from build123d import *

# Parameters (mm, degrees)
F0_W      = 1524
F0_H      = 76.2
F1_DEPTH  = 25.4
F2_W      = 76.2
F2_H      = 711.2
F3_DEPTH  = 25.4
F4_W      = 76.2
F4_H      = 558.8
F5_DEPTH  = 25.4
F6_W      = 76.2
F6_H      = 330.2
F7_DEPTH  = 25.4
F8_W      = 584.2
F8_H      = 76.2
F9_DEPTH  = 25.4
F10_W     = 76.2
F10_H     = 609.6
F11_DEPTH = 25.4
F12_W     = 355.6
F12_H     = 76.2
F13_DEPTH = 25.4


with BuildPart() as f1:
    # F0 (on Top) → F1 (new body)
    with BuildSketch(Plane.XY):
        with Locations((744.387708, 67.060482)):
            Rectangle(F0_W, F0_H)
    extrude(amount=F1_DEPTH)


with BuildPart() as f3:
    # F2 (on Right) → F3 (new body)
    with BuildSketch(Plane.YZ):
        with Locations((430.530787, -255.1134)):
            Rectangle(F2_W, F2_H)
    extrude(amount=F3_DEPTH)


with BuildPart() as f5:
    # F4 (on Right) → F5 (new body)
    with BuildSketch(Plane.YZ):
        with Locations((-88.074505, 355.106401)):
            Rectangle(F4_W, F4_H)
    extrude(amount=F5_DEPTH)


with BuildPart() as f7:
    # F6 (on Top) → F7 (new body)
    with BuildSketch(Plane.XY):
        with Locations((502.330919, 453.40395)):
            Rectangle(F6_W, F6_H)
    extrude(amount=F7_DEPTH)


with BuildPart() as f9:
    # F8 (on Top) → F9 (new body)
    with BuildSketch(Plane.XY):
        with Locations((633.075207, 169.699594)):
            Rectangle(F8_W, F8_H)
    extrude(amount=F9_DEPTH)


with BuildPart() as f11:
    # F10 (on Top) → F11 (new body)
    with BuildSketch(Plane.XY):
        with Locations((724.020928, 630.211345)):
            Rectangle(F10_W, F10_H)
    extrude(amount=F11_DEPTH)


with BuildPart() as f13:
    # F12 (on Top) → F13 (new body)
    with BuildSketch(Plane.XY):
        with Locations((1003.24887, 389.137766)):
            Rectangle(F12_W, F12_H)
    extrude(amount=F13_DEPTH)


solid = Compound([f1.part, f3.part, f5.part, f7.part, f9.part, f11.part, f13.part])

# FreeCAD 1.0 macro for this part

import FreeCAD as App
import Part
import Sketcher

V = App.Vector
Q = App.Units.Quantity


def add_polygon(sketch, points):
    """Adds a closed chain of lines whose ends are joined by coincident constraints."""
    first, n = sketch.GeometryCount, len(points)
    for a, b in zip(points, points[1:] + points[:1]):
        sketch.addGeometry(Part.LineSegment(App.Vector(*a, 0), App.Vector(*b, 0)), False)
    for i in range(n):
        sketch.addConstraint(Sketcher.Constraint("Coincident", first + i, 2, first + (i + 1) % n, 1))

doc = App.newDocument("Part")
params = doc.addObject("Spreadsheet::Sheet", "Params")
for row, (alias, value) in enumerate([
    ("sketch1_width", "60 in"),
    ("sketch1_height", "3 in"),
    ("pad1_length", "1 in"),
    ("sketch2_width", "3 in"),
    ("sketch2_height", "28 in"),
    ("pad2_length", "1 in"),
    ("sketch3_width", "3 in"),
    ("sketch3_height", "22 in"),
    ("pad3_length", "1 in"),
    ("sketch4_width", "3 in"),
    ("sketch4_height", "13 in"),
    ("pad4_length", "1 in"),
    ("sketch5_width", "23 in"),
    ("sketch5_height", "3 in"),
    ("pad5_length", "1 in"),
    ("sketch6_width", "3 in"),
    ("sketch6_height", "24 in"),
    ("pad6_length", "1 in"),
    ("sketch7_width", "14 in"),
    ("sketch7_height", "3 in"),
    ("pad7_length", "1 in"),
], start=1):
    params.set(f"A{row}", alias)
    params.set(f"B{row}", "=" + value)
    params.setAlias(f"B{row}", alias)

body = doc.addObject("PartDesign::Body", "Body")

sketch1 = body.newObject("Sketcher::SketchObject", "Sketch")
sketch1.AttachmentSupport = (doc.getObject("XY_Plane"), [""])
sketch1.MapMode = "FlatFace"
add_polygon(sketch1, [(-18, 105), (-18, 29), (1506, 29), (1506, 105)])
sketch1.addConstraint([
    Sketcher.Constraint("Vertical", 0),
    Sketcher.Constraint("Horizontal", 1),
    Sketcher.Constraint("Vertical", 2),
    Sketcher.Constraint("Horizontal", 3),
    Sketcher.Constraint("DistanceX", 1, 1, 1, 2, Q("60 in")),
    Sketcher.Constraint("DistanceY", 0, 2, 0, 1, Q("3 in")),
    Sketcher.Constraint("DistanceX", 0, 2, -1, 1, 17.612292),
    Sketcher.Constraint("DistanceY", -1, 1, 0, 2, 28.960482),
])
sketch1.setExpression("Constraints[8]", "Params.sketch1_width")
sketch1.setExpression("Constraints[9]", "Params.sketch1_height")
pad1 = body.newObject("PartDesign::Pad", "Pad")
pad1.Profile = sketch1
pad1.setExpression("Length", "Params.pad1_length")
body2 = doc.addObject("PartDesign::Body", "Body001")

sketch2 = body2.newObject("Sketcher::SketchObject", "Sketch001")
sketch2.AttachmentSupport = (doc.getObject("YZ_Plane001"), [""])
sketch2.MapMode = "FlatFace"
add_polygon(sketch2, [(392, 100), (392, -611), (469, -611), (469, 100)])
sketch2.addConstraint([
    Sketcher.Constraint("Vertical", 0),
    Sketcher.Constraint("Horizontal", 1),
    Sketcher.Constraint("Vertical", 2),
    Sketcher.Constraint("Horizontal", 3),
    Sketcher.Constraint("DistanceX", 1, 1, 1, 2, Q("3 in")),
    Sketcher.Constraint("DistanceY", 0, 2, 0, 1, Q("28 in")),
    Sketcher.Constraint("DistanceY", 0, 2, -1, 1, 610.7134),
    Sketcher.Constraint("DistanceX", -1, 1, 0, 2, 392.430787),
])
sketch2.setExpression("Constraints[8]", "Params.sketch2_width")
sketch2.setExpression("Constraints[9]", "Params.sketch2_height")
pad2 = body2.newObject("PartDesign::Pad", "Pad001")
pad2.Profile = sketch2
pad2.setExpression("Length", "Params.pad2_length")
body3 = doc.addObject("PartDesign::Body", "Body002")

sketch3 = body3.newObject("Sketcher::SketchObject", "Sketch002")
sketch3.AttachmentSupport = (doc.getObject("YZ_Plane002"), [""])
sketch3.MapMode = "FlatFace"
add_polygon(sketch3, [(-126, 635), (-126, 76), (-50, 76), (-50, 635)])
sketch3.addConstraint([
    Sketcher.Constraint("Vertical", 0),
    Sketcher.Constraint("Horizontal", 1),
    Sketcher.Constraint("Vertical", 2),
    Sketcher.Constraint("Horizontal", 3),
    Sketcher.Constraint("DistanceX", 1, 1, 1, 2, Q("3 in")),
    Sketcher.Constraint("DistanceY", 0, 2, 0, 1, Q("22 in")),
    Sketcher.Constraint("DistanceX", 0, 2, -1, 1, Q("4.9675002 in")),
    Sketcher.Constraint("DistanceY", -1, 1, 0, 2, 75.706401),
])
sketch3.setExpression("Constraints[8]", "Params.sketch3_width")
sketch3.setExpression("Constraints[9]", "Params.sketch3_height")
pad3 = body3.newObject("PartDesign::Pad", "Pad002")
pad3.Profile = sketch3
pad3.setExpression("Length", "Params.pad3_length")
body4 = doc.addObject("PartDesign::Body", "Body003")

sketch4 = body4.newObject("Sketcher::SketchObject", "Sketch003")
sketch4.AttachmentSupport = (doc.getObject("XY_Plane003"), [""])
sketch4.MapMode = "FlatFace"
add_polygon(sketch4, [(464, 619), (464, 288), (540, 288), (540, 619)])
sketch4.addConstraint([
    Sketcher.Constraint("Vertical", 0),
    Sketcher.Constraint("Horizontal", 1),
    Sketcher.Constraint("Vertical", 2),
    Sketcher.Constraint("Horizontal", 3),
    Sketcher.Constraint("DistanceX", 1, 1, 1, 2, Q("3 in")),
    Sketcher.Constraint("DistanceY", 0, 2, 0, 1, Q("13 in")),
    Sketcher.Constraint("DistanceX", -1, 1, 0, 2, 464.230919),
    Sketcher.Constraint("DistanceY", -1, 1, 0, 2, 288.30395),
])
sketch4.setExpression("Constraints[8]", "Params.sketch4_width")
sketch4.setExpression("Constraints[9]", "Params.sketch4_height")
pad4 = body4.newObject("PartDesign::Pad", "Pad003")
pad4.Profile = sketch4
pad4.setExpression("Length", "Params.pad4_length")
body5 = doc.addObject("PartDesign::Body", "Body004")

sketch5 = body5.newObject("Sketcher::SketchObject", "Sketch004")
sketch5.AttachmentSupport = (doc.getObject("XY_Plane004"), [""])
sketch5.MapMode = "FlatFace"
add_polygon(sketch5, [(341, 208), (341, 132), (925, 132), (925, 208)])
sketch5.addConstraint([
    Sketcher.Constraint("Vertical", 0),
    Sketcher.Constraint("Horizontal", 1),
    Sketcher.Constraint("Vertical", 2),
    Sketcher.Constraint("Horizontal", 3),
    Sketcher.Constraint("DistanceX", 1, 1, 1, 2, Q("23 in")),
    Sketcher.Constraint("DistanceY", 0, 2, 0, 1, Q("3 in")),
    Sketcher.Constraint("DistanceX", -1, 1, 0, 2, 340.975207),
    Sketcher.Constraint("DistanceY", -1, 1, 0, 2, 131.599594),
])
sketch5.setExpression("Constraints[8]", "Params.sketch5_width")
sketch5.setExpression("Constraints[9]", "Params.sketch5_height")
pad5 = body5.newObject("PartDesign::Pad", "Pad004")
pad5.Profile = sketch5
pad5.setExpression("Length", "Params.pad5_length")
body6 = doc.addObject("PartDesign::Body", "Body005")

sketch6 = body6.newObject("Sketcher::SketchObject", "Sketch005")
sketch6.AttachmentSupport = (doc.getObject("XY_Plane005"), [""])
sketch6.MapMode = "FlatFace"
add_polygon(sketch6, [(686, 935), (686, 325), (762, 325), (762, 935)])
sketch6.addConstraint([
    Sketcher.Constraint("Vertical", 0),
    Sketcher.Constraint("Horizontal", 1),
    Sketcher.Constraint("Vertical", 2),
    Sketcher.Constraint("Horizontal", 3),
    Sketcher.Constraint("DistanceX", 1, 1, 1, 2, Q("3 in")),
    Sketcher.Constraint("DistanceY", 0, 2, 0, 1, Q("24 in")),
    Sketcher.Constraint("DistanceX", -1, 1, 0, 2, 685.920928),
    Sketcher.Constraint("DistanceY", -1, 1, 0, 2, 325.411345),
])
sketch6.setExpression("Constraints[8]", "Params.sketch6_width")
sketch6.setExpression("Constraints[9]", "Params.sketch6_height")
pad6 = body6.newObject("PartDesign::Pad", "Pad005")
pad6.Profile = sketch6
pad6.setExpression("Length", "Params.pad6_length")
body7 = doc.addObject("PartDesign::Body", "Body006")

sketch7 = body7.newObject("Sketcher::SketchObject", "Sketch006")
sketch7.AttachmentSupport = (doc.getObject("XY_Plane006"), [""])
sketch7.MapMode = "FlatFace"
add_polygon(sketch7, [(825, 427), (825, 351), (1181, 351), (1181, 427)])
sketch7.addConstraint([
    Sketcher.Constraint("Vertical", 0),
    Sketcher.Constraint("Horizontal", 1),
    Sketcher.Constraint("Vertical", 2),
    Sketcher.Constraint("Horizontal", 3),
    Sketcher.Constraint("DistanceX", 1, 1, 1, 2, Q("14 in")),
    Sketcher.Constraint("DistanceY", 0, 2, 0, 1, Q("3 in")),
    Sketcher.Constraint("DistanceX", -1, 1, 0, 2, 825.44887),
    Sketcher.Constraint("DistanceY", -1, 1, 0, 2, 351.037766),
])
sketch7.setExpression("Constraints[8]", "Params.sketch7_width")
sketch7.setExpression("Constraints[9]", "Params.sketch7_height")
pad7 = body7.newObject("PartDesign::Pad", "Pad006")
pad7.Profile = sketch7
pad7.setExpression("Length", "Params.pad7_length")

doc.recompute()
